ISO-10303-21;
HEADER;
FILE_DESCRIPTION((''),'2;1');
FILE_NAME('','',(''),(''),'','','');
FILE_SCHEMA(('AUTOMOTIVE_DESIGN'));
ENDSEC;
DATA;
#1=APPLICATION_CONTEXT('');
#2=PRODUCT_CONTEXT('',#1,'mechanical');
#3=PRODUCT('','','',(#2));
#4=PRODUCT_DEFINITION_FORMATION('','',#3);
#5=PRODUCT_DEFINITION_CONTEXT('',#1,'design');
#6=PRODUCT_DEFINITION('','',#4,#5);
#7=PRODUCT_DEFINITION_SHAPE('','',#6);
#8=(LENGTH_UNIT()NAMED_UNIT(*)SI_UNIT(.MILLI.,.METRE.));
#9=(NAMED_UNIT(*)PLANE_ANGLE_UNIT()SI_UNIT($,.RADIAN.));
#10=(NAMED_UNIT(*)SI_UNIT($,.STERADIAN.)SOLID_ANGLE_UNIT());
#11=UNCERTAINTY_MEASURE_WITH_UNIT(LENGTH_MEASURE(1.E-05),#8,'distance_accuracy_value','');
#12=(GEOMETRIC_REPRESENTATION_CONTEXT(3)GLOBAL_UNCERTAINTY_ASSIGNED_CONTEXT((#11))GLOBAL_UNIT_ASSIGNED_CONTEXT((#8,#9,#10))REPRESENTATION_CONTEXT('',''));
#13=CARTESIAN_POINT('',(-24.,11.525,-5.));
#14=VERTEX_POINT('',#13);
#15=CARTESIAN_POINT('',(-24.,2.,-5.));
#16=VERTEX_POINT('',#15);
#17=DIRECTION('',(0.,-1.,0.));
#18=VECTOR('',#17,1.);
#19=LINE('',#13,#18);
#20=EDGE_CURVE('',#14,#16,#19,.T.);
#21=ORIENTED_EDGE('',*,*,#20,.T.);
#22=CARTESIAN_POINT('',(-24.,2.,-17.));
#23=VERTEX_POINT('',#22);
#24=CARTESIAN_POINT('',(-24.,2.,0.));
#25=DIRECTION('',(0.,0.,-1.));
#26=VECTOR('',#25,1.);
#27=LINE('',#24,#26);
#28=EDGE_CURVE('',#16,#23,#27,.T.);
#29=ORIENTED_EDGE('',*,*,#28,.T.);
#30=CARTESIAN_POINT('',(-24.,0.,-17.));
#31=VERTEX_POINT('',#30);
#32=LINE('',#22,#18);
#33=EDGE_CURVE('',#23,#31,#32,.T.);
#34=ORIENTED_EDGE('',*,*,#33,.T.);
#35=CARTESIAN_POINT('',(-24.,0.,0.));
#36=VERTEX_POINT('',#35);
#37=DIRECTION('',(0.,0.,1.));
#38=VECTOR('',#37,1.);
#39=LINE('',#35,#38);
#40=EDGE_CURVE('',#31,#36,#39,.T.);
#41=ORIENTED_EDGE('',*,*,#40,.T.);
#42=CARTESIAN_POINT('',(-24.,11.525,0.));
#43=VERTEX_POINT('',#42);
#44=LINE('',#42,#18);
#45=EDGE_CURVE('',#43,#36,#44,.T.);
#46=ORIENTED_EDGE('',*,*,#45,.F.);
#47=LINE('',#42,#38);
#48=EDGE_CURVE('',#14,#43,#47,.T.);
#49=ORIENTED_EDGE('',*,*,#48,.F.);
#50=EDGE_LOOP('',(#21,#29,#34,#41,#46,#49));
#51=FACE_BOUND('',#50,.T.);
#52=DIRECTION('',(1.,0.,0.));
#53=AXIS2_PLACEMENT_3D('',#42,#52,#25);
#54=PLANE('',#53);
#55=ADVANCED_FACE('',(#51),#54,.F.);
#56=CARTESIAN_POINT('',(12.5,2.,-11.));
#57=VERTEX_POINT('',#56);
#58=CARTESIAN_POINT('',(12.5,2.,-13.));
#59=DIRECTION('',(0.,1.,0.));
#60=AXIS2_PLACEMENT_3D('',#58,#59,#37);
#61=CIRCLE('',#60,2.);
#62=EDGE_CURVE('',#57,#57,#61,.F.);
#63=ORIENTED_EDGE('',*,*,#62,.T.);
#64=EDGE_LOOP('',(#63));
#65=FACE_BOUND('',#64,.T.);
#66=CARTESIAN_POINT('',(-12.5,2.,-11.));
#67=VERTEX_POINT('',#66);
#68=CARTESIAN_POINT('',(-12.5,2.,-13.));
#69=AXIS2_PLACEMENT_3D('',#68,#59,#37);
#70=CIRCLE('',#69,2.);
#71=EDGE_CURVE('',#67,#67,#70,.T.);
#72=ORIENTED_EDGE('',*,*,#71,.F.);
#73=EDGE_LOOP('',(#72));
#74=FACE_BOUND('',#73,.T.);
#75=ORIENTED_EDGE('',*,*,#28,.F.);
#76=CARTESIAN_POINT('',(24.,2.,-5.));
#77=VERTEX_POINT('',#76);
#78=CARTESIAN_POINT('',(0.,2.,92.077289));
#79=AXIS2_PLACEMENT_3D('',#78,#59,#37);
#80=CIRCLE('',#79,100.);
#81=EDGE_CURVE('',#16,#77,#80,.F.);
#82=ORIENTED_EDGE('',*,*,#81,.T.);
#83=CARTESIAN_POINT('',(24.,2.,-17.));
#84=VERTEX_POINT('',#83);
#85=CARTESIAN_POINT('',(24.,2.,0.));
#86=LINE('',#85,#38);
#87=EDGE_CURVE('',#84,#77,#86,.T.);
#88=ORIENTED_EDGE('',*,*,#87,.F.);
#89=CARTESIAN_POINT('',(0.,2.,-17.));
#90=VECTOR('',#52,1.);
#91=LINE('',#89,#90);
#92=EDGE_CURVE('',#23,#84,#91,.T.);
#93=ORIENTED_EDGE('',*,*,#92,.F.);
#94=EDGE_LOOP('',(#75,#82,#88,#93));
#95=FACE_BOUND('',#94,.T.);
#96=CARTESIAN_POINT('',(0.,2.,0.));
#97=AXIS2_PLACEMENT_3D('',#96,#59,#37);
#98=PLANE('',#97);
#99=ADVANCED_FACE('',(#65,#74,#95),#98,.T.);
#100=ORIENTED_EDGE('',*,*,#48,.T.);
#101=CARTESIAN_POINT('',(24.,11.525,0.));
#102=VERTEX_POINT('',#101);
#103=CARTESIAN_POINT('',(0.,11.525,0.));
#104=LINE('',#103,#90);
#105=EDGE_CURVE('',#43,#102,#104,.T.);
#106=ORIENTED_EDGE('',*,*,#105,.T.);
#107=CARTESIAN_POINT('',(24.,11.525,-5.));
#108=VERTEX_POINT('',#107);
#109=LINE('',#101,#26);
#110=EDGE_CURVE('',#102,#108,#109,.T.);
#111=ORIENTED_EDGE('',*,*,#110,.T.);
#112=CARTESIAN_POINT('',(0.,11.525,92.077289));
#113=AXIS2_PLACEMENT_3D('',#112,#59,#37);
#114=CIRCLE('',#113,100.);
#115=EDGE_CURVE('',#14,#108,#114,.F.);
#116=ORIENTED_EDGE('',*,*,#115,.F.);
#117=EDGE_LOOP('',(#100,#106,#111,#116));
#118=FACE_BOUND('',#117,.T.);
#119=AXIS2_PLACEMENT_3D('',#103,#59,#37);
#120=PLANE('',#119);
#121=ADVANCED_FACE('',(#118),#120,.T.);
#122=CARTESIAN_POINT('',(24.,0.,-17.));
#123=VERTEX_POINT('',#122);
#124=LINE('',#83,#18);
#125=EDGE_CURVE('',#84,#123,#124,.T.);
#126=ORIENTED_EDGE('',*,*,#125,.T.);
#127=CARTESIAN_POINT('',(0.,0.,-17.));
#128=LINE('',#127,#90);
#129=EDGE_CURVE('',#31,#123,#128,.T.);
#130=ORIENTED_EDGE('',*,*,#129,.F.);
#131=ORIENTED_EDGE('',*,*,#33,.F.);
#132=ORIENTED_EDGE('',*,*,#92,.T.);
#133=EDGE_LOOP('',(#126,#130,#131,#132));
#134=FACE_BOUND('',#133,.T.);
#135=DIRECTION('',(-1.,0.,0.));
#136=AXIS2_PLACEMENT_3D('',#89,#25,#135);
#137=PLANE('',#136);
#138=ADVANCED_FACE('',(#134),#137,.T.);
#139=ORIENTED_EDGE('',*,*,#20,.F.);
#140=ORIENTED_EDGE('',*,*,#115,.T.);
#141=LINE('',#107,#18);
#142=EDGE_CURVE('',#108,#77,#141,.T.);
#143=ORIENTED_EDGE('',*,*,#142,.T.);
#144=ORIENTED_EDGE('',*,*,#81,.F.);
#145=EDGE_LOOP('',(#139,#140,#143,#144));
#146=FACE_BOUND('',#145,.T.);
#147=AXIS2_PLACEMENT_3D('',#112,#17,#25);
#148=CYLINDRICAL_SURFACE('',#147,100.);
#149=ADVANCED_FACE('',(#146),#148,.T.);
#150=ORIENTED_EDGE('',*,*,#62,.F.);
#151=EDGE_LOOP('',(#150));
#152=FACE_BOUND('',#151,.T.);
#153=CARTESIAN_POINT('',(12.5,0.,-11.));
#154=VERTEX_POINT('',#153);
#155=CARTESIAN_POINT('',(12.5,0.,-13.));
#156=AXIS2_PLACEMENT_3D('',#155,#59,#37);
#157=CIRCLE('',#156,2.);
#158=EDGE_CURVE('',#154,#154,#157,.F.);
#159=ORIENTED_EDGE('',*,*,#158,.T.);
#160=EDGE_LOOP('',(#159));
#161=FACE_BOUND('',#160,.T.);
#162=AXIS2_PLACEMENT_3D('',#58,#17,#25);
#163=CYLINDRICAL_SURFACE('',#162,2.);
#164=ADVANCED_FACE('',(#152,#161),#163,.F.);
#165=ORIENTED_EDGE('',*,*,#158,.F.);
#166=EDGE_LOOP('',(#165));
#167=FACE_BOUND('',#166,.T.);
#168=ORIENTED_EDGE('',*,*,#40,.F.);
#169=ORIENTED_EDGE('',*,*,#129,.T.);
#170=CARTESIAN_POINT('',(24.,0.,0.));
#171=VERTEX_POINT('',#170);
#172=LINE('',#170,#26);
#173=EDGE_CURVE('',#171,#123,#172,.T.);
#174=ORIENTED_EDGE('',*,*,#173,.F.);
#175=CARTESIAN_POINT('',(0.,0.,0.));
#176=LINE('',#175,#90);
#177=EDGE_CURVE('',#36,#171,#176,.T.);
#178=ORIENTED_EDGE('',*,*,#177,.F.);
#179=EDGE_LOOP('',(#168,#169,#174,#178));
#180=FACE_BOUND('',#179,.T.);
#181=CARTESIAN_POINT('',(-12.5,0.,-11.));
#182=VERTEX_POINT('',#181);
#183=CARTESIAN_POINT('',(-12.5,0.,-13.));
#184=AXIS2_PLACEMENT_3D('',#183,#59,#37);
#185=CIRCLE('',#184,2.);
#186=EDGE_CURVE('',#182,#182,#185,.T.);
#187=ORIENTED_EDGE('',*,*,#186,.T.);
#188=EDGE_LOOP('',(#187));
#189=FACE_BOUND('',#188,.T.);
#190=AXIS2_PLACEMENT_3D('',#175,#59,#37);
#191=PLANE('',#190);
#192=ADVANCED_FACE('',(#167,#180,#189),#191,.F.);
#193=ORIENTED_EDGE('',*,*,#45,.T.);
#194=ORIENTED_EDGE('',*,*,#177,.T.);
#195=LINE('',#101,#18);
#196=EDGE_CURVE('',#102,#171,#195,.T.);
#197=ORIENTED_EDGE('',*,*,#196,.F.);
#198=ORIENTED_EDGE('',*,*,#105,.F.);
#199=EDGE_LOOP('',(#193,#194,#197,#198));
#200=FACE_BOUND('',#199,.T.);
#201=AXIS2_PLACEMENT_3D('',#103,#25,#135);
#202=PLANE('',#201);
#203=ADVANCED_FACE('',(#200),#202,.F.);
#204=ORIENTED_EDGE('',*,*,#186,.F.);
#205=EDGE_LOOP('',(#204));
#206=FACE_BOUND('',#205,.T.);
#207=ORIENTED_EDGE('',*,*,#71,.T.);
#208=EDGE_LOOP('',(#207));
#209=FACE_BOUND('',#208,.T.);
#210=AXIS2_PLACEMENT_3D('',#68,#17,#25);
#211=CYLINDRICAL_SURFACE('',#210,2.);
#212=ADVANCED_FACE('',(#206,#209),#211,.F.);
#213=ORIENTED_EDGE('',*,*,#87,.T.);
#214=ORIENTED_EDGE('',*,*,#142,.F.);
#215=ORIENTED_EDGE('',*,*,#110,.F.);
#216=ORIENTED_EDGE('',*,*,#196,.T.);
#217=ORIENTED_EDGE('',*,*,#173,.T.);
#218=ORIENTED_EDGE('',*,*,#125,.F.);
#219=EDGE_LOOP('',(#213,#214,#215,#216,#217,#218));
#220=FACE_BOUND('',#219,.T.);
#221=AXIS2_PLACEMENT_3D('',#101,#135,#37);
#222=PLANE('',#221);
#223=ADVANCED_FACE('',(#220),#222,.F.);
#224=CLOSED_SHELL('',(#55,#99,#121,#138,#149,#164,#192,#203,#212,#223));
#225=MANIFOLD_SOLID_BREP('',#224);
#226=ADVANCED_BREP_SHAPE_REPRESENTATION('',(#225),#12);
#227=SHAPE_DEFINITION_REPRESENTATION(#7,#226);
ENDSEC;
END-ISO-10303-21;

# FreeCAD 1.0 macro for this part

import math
import FreeCAD as App
import Part
import Sketcher

V = App.Vector


def add_polygon(sketch, points):
    """Adds a closed chain of lines whose ends are joined by coincident constraints."""
    first, n = sketch.GeometryCount, len(points)
    for a, b in zip(points, points[1:] + points[:1]):
        sketch.addGeometry(Part.LineSegment(App.Vector(*a, 0), App.Vector(*b, 0)), False)
    for i in range(n):
        sketch.addConstraint(Sketcher.Constraint("Coincident", first + i, 2, first + (i + 1) % n, 1))

doc = App.newDocument("Part")
body = doc.addObject("PartDesign::Body", "Body")

# Sketch on XZ plane
sketch1 = body.newObject("Sketcher::SketchObject", "Sketch")
sketch1.AttachmentSupport = (doc.getObject("XZ_Plane"), [""])
sketch1.MapMode = "FlatFace"
sketch1.addGeometry([
    Part.ArcOfCircle(Part.Circle(V(0, 92, 0), V(0, 0, 1), 100), math.radians(-104), math.radians(-76)),
    Part.LineSegment(V(-24, -5, 0), V(-24, 0, 0)),
    Part.LineSegment(V(-24, 0, 0), V(24, 0, 0)),
    Part.LineSegment(V(24, 0, 0), V(24, -5, 0)),
], False)
sketch1.addConstraint([
    Sketcher.Constraint("Coincident", 0, 1, 1, 1),
    Sketcher.Constraint("Coincident", 1, 2, 2, 1),
    Sketcher.Constraint("Coincident", 2, 2, 3, 1),
    Sketcher.Constraint("Coincident", 3, 2, 0, 2),
    Sketcher.Constraint("Vertical", 1),
    Sketcher.Constraint("Horizontal", 2),
    Sketcher.Constraint("Vertical", 3),
    Sketcher.Constraint("Symmetric", 1, 2, 2, 2, -1, 1),
    Sketcher.Constraint("PointOnObject", 0, 3, -2),
    Sketcher.Constraint("Radius", 0, 100.0),
    Sketcher.Constraint("DistanceX", 2, 1, 2, 2, 48.0),
    Sketcher.Constraint("DistanceY", 1, 1, 1, 2, 5.0),
])
pad1 = body.newObject("PartDesign::Pad", "Pad")
pad1.Profile = sketch1
pad1.Length = 11.525
pad1.Reversed = True

# Sketch on XZ plane
sketch2 = body.newObject("Sketcher::SketchObject", "Sketch001")
sketch2.AttachmentSupport = (doc.getObject("XZ_Plane"), [""])
sketch2.MapMode = "FlatFace"
add_polygon(sketch2, [(-24, 0), (24, 0), (24, -17), (-24, -17)])  # lines 0-3
sketch2.addGeometry(Part.Circle(V(12.5, -13, 0), V(0, 0, 1), 2), False)  # 4
sketch2.addGeometry(Part.Circle(V(-12.5, -13, 0), V(0, 0, 1), 2), False)  # 5
sketch2.addConstraint([
    Sketcher.Constraint("Horizontal", 0),
    Sketcher.Constraint("Vertical", 1),
    Sketcher.Constraint("Horizontal", 2),
    Sketcher.Constraint("Vertical", 3),
    Sketcher.Constraint("Equal", 4, 5),
    Sketcher.Constraint("Symmetric", 0, 2, 3, 2, -1, 1),
    Sketcher.Constraint("Symmetric", 4, 3, 5, 3, -2),
    Sketcher.Constraint("Diameter", 4, 4.0),
    Sketcher.Constraint("DistanceX", 0, 1, 0, 2, 48.0),
    Sketcher.Constraint("DistanceY", 1, 2, 1, 1, 17.0),
    Sketcher.Constraint("DistanceY", 4, 3, -1, 1, 13.0),
    Sketcher.Constraint("DistanceX", 5, 3, 4, 3, 25.0),
])
pad2 = body.newObject("PartDesign::Pad", "Pad001")
pad2.Profile = sketch2
pad2.Length = 2
pad2.Reversed = True

doc.recompute()
